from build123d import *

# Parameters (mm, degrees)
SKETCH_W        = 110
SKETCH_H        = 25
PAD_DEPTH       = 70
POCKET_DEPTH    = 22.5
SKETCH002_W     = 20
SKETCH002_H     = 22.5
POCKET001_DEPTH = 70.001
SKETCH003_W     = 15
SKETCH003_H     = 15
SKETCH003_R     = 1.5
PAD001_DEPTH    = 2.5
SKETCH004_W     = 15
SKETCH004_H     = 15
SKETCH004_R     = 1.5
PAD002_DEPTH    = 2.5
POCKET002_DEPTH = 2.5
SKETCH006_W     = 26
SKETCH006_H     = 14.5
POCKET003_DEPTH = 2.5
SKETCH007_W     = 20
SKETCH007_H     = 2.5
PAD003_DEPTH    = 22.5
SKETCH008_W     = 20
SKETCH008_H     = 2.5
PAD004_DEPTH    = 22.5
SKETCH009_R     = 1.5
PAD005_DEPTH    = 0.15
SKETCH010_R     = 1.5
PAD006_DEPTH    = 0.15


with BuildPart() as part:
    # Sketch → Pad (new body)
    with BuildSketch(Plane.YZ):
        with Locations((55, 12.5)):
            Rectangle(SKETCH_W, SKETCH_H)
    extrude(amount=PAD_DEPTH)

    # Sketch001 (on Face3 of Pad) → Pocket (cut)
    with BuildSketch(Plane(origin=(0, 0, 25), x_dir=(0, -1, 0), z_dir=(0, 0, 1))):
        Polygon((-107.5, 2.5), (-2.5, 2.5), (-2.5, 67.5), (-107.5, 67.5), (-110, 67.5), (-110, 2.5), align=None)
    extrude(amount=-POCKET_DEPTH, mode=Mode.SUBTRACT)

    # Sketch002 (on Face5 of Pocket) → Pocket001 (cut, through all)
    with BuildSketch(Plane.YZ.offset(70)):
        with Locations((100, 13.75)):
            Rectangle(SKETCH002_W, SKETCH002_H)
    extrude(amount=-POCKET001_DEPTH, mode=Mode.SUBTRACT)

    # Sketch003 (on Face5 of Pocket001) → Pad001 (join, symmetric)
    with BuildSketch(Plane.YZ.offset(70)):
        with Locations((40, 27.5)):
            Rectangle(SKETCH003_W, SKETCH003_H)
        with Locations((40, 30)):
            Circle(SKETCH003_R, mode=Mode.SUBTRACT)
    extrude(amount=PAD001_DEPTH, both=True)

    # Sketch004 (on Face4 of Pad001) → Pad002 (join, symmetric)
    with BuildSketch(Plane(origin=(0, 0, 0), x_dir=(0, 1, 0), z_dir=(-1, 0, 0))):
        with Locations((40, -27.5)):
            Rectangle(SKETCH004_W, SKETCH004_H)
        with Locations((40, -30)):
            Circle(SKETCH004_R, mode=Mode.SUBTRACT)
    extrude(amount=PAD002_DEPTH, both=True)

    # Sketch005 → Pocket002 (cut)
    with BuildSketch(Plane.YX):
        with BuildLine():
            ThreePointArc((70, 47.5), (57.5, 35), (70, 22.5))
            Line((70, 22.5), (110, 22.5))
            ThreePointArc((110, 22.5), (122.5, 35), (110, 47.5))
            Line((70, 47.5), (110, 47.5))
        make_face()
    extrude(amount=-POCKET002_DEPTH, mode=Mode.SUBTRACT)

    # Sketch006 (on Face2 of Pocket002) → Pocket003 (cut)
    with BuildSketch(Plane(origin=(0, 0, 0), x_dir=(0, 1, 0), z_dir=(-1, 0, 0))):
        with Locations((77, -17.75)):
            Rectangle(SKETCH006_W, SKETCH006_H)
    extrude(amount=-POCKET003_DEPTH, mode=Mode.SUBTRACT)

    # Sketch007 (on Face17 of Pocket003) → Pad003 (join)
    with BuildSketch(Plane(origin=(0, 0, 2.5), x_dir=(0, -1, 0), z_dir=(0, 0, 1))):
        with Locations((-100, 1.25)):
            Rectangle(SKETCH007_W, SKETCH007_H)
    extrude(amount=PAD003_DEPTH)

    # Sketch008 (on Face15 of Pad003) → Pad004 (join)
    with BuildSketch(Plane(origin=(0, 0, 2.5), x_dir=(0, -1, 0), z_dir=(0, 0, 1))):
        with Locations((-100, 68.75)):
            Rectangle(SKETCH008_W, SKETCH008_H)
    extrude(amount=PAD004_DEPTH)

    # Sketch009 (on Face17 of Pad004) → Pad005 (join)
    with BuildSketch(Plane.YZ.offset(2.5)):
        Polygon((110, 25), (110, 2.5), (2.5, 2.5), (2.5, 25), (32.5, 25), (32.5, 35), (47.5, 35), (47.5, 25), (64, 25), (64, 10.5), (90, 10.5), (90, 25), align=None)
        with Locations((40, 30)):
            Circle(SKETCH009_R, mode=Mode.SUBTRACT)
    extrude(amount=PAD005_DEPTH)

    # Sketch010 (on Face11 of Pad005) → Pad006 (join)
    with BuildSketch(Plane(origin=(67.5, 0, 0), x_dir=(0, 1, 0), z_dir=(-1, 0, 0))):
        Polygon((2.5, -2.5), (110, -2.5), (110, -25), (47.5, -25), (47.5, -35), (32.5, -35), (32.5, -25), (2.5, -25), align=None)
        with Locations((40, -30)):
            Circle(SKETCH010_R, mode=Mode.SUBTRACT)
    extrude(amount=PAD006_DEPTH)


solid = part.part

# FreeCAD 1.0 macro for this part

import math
import FreeCAD as App
import Part
import Sketcher
from FreeCAD import Vector
Q = App.Units.Quantity

doc = App.newDocument("Part")
body = doc.addObject("PartDesign::Body", "Body")

# Sketch on YZ plane
sketch1 = body.newObject("Sketcher::SketchObject", "Sketch")
sketch1.AttachmentSupport = (doc.getObject("YZ_Plane"), [""])
sketch1.MapMode = "FlatFace"
sketch1.addGeometry(Part.LineSegment(Vector(0, 25, 0), Vector(0, 0, 0)), False)
sketch1.addGeometry(Part.LineSegment(Vector(0, 0, 0), Vector(110, 0, 0)), False)
sketch1.addGeometry(Part.LineSegment(Vector(110, 0, 0), Vector(110, 25, 0)), False)
sketch1.addGeometry(Part.LineSegment(Vector(110, 25, 0), Vector(0, 25, 0)), False)
sketch1.addConstraint(Sketcher.Constraint("Coincident", 0, 2, 1, 1))
sketch1.addConstraint(Sketcher.Constraint("Coincident", 1, 2, 2, 1))
sketch1.addConstraint(Sketcher.Constraint("Coincident", 2, 2, 3, 1))
sketch1.addConstraint(Sketcher.Constraint("Coincident", 3, 2, 0, 1))
sketch1.addConstraint(Sketcher.Constraint("Vertical", 0))
sketch1.addConstraint(Sketcher.Constraint("Horizontal", 1))
sketch1.addConstraint(Sketcher.Constraint("Vertical", 2))
sketch1.addConstraint(Sketcher.Constraint("Horizontal", 3))
sketch1.addConstraint(Sketcher.Constraint("Coincident", 0, 2, -1, 1))
sketch1.addConstraint(Sketcher.Constraint("DistanceX", 1, 1, 1, 2, Q("110 mm")))
sketch1.addConstraint(Sketcher.Constraint("DistanceY", 0, 2, 0, 1, Q("25 mm")))
pad1 = body.newObject("PartDesign::Pad", "Pad")
pad1.Profile = sketch1
pad1.Length = 70

# Sketch on XY plane
sketch2 = body.newObject("Sketcher::SketchObject", "Sketch001")
sketch2.AttachmentSupport = (doc.getObject("XY_Plane"), [""])
sketch2.MapMode = "FlatFace"
sketch2.AttachmentOffset = App.Placement(Vector(0, 0, 25), App.Rotation())
sketch2.addGeometry(Part.LineSegment(Vector(2.5, 2.5, 0), Vector(67.5, 2.5, 0)), False)
sketch2.addGeometry(Part.LineSegment(Vector(67.5, 2.5, 0), Vector(67.5, 110, 0)), False)
sketch2.addGeometry(Part.LineSegment(Vector(67.5, 110, 0), Vector(2.5, 110, 0)), False)
sketch2.addGeometry(Part.LineSegment(Vector(2.5, 110, 0), Vector(2.5, 2.5, 0)), False)
sketch2.addConstraint(Sketcher.Constraint("Coincident", 0, 2, 1, 1))
sketch2.addConstraint(Sketcher.Constraint("Coincident", 1, 2, 2, 1))
sketch2.addConstraint(Sketcher.Constraint("Coincident", 2, 2, 3, 1))
sketch2.addConstraint(Sketcher.Constraint("Coincident", 3, 2, 0, 1))
sketch2.addConstraint(Sketcher.Constraint("Horizontal", 0))
sketch2.addConstraint(Sketcher.Constraint("Vertical", 1))
sketch2.addConstraint(Sketcher.Constraint("Horizontal", 2))
sketch2.addConstraint(Sketcher.Constraint("Vertical", 3))
sketch2.addConstraint(Sketcher.Constraint("DistanceX", 0, 1, 0, 2, Q("65 mm")))
sketch2.addConstraint(Sketcher.Constraint("DistanceY", 1, 1, 1, 2, Q("107.5 mm")))
sketch2.addConstraint(Sketcher.Constraint("DistanceY", -1, 1, 1, 2, Q("110 mm")))
sketch2.addConstraint(Sketcher.Constraint("DistanceX", -1, 1, 0, 2, Q("67.5 mm")))
pocket1 = body.newObject("PartDesign::Pocket", "Pocket")
pocket1.Profile = sketch2
pocket1.Length = 22.5

# Sketch on YZ plane
sketch3 = body.newObject("Sketcher::SketchObject", "Sketch002")
sketch3.AttachmentSupport = (doc.getObject("YZ_Plane"), [""])
sketch3.MapMode = "FlatFace"
sketch3.AttachmentOffset = App.Placement(Vector(0, 0, 70), App.Rotation())
sketch3.addGeometry(Part.LineSegment(Vector(90, 25, 0), Vector(90, 2.5, 0)), False)
sketch3.addGeometry(Part.LineSegment(Vector(90, 2.5, 0), Vector(110, 2.5, 0)), False)
sketch3.addGeometry(Part.LineSegment(Vector(110, 2.5, 0), Vector(110, 25, 0)), False)
sketch3.addGeometry(Part.LineSegment(Vector(110, 25, 0), Vector(90, 25, 0)), False)
sketch3.addConstraint(Sketcher.Constraint("Coincident", 0, 2, 1, 1))
sketch3.addConstraint(Sketcher.Constraint("Coincident", 1, 2, 2, 1))
sketch3.addConstraint(Sketcher.Constraint("Coincident", 2, 2, 3, 1))
sketch3.addConstraint(Sketcher.Constraint("Coincident", 3, 2, 0, 1))
sketch3.addConstraint(Sketcher.Constraint("Vertical", 0))
sketch3.addConstraint(Sketcher.Constraint("Horizontal", 1))
sketch3.addConstraint(Sketcher.Constraint("Vertical", 2))
sketch3.addConstraint(Sketcher.Constraint("Horizontal", 3))
sketch3.addConstraint(Sketcher.Constraint("DistanceX", 1, 1, 1, 2, Q("20 mm")))
sketch3.addConstraint(Sketcher.Constraint("DistanceY", 0, 2, 0, 1, Q("22.5 mm")))
sketch3.addConstraint(Sketcher.Constraint("DistanceX", -1, 1, 0, 2, Q("90 mm")))
sketch3.addConstraint(Sketcher.Constraint("DistanceY", -1, 1, 2, 2, Q("25 mm")))
pocket2 = body.newObject("PartDesign::Pocket", "Pocket001")
pocket2.Profile = sketch3
pocket2.Type = "ThroughAll"

# Sketch on YZ plane
sketch4 = body.newObject("Sketcher::SketchObject", "Sketch003")
sketch4.AttachmentSupport = (doc.getObject("YZ_Plane"), [""])
sketch4.MapMode = "FlatFace"
sketch4.AttachmentOffset = App.Placement(Vector(0, 0, 70), App.Rotation())
sketch4.addGeometry(Part.LineSegment(Vector(32.5, 35, 0), Vector(32.5, 20, 0)), False)
sketch4.addGeometry(Part.LineSegment(Vector(32.5, 20, 0), Vector(47.5, 20, 0)), False)
sketch4.addGeometry(Part.LineSegment(Vector(47.5, 20, 0), Vector(47.5, 35, 0)), False)
sketch4.addGeometry(Part.LineSegment(Vector(47.5, 35, 0), Vector(32.5, 35, 0)), False)
sketch4.addGeometry(Part.Circle(Vector(40, 30, 0), Vector(0, 0, 1), 1.5), False)
sketch4.addConstraint(Sketcher.Constraint("Coincident", 0, 2, 1, 1))
sketch4.addConstraint(Sketcher.Constraint("Coincident", 1, 2, 2, 1))
sketch4.addConstraint(Sketcher.Constraint("Coincident", 2, 2, 3, 1))
sketch4.addConstraint(Sketcher.Constraint("Coincident", 3, 2, 0, 1))
sketch4.addConstraint(Sketcher.Constraint("Vertical", 0))
sketch4.addConstraint(Sketcher.Constraint("Horizontal", 1))
sketch4.addConstraint(Sketcher.Constraint("Vertical", 2))
sketch4.addConstraint(Sketcher.Constraint("Horizontal", 3))
sketch4.addConstraint(Sketcher.Constraint("Equal", 3, 0))
sketch4.addConstraint(Sketcher.Constraint("Diameter", 4, Q("3 mm")))
sketch4.addConstraint(Sketcher.Constraint("DistanceX", 1, 1, 1, 2, Q("15 mm")))
sketch4.addConstraint(Sketcher.Constraint("DistanceX", -1, 1, 4, 3, Q("40 mm")))
sketch4.addConstraint(Sketcher.Constraint("DistanceY", -1, 1, 4, 3, Q("30 mm")))
sketch4.addConstraint(Sketcher.Constraint("DistanceY", -1, 1, 0, 2, Q("20 mm")))
sketch4.addConstraint(Sketcher.Constraint("DistanceX", -1, 1, 0, 2, Q("32.5 mm")))
pad2 = body.newObject("PartDesign::Pad", "Pad001")
pad2.Profile = sketch4
pad2.Length = 5
pad2.Midplane = True

# Sketch on YZ plane
sketch5 = body.newObject("Sketcher::SketchObject", "Sketch004")
sketch5.AttachmentSupport = (doc.getObject("YZ_Plane"), [""])
sketch5.MapMode = "FlatFace"
sketch5.addGeometry(Part.LineSegment(Vector(32.5, 20, 0), Vector(32.5, 35, 0)), False)
sketch5.addGeometry(Part.LineSegment(Vector(32.5, 35, 0), Vector(47.5, 35, 0)), False)
sketch5.addGeometry(Part.LineSegment(Vector(47.5, 35, 0), Vector(47.5, 20, 0)), False)
sketch5.addGeometry(Part.LineSegment(Vector(47.5, 20, 0), Vector(32.5, 20, 0)), False)
sketch5.addGeometry(Part.Circle(Vector(40, 30, 0), Vector(0, 0, 1), 1.5), False)
sketch5.addConstraint(Sketcher.Constraint("Coincident", 0, 2, 1, 1))
sketch5.addConstraint(Sketcher.Constraint("Coincident", 1, 2, 2, 1))
sketch5.addConstraint(Sketcher.Constraint("Coincident", 2, 2, 3, 1))
sketch5.addConstraint(Sketcher.Constraint("Coincident", 3, 2, 0, 1))
sketch5.addConstraint(Sketcher.Constraint("Vertical", 0))
sketch5.addConstraint(Sketcher.Constraint("Horizontal", 1))
sketch5.addConstraint(Sketcher.Constraint("Vertical", 2))
sketch5.addConstraint(Sketcher.Constraint("Horizontal", 3))
sketch5.addConstraint(Sketcher.Constraint("Equal", 3, 0))
sketch5.addConstraint(Sketcher.Constraint("Diameter", 4, Q("3 mm")))
sketch5.addConstraint(Sketcher.Constraint("DistanceX", 1, 1, 1, 2, Q("15 mm")))
sketch5.addConstraint(Sketcher.Constraint("DistanceX", -1, 1, 4, 3, Q("40 mm")))
sketch5.addConstraint(Sketcher.Constraint("DistanceY", -1, 1, 4, 3, Q("30 mm")))
sketch5.addConstraint(Sketcher.Constraint("DistanceY", -1, 1, 0, 2, Q("35 mm")))
sketch5.addConstraint(Sketcher.Constraint("DistanceX", -1, 1, 0, 2, Q("32.5 mm")))
pad3 = body.newObject("PartDesign::Pad", "Pad002")
pad3.Profile = sketch5
pad3.Length = 5
pad3.Midplane = True

# Sketch on XY plane
sketch6 = body.newObject("Sketcher::SketchObject", "Sketch005")
sketch6.AttachmentSupport = (doc.getObject("XY_Plane"), [""])
sketch6.MapMode = "FlatFace"
sketch6.addGeometry(Part.ArcOfCircle(Part.Circle(Vector(35, 70, 0), Vector(0, 0, 1), 12.5), math.radians(180), math.radians(360)), False)
sketch6.addGeometry(Part.LineSegment(Vector(22.5, 70, 0), Vector(22.5, 110, 0)), False)
sketch6.addGeometry(Part.ArcOfCircle(Part.Circle(Vector(35, 110, 0), Vector(0, 0, 1), 12.5), math.radians(0), math.radians(180)), False)
sketch6.addGeometry(Part.LineSegment(Vector(47.5, 110, 0), Vector(47.5, 70, 0)), False)
sketch6.addConstraint(Sketcher.Constraint("Tangent", 0, 1, 1, 1))
sketch6.addConstraint(Sketcher.Constraint("Tangent", 1, 2, 2, 2))
sketch6.addConstraint(Sketcher.Constraint("Tangent", 2, 1, 3, 1))
sketch6.addConstraint(Sketcher.Constraint("Tangent", 3, 2, 0, 2))
sketch6.addConstraint(Sketcher.Constraint("Vertical", 1))
sketch6.addConstraint(Sketcher.Constraint("Vertical", 3))
sketch6.addConstraint(Sketcher.Constraint("Radius", 0, Q("12.5 mm")))
sketch6.addConstraint(Sketcher.Constraint("DistanceY", 1, 1, 1, 2, Q("40 mm")))
sketch6.addConstraint(Sketcher.Constraint("DistanceX", -1, 1, 0, 3, Q("35 mm")))
sketch6.addConstraint(Sketcher.Constraint("DistanceY", -1, 1, 0, 3, Q("70 mm")))
pocket3 = body.newObject("PartDesign::Pocket", "Pocket002")
pocket3.Profile = sketch6
pocket3.Length = 2.5
pocket3.Reversed = True

# Sketch on YZ plane
sketch7 = body.newObject("Sketcher::SketchObject", "Sketch006")
sketch7.AttachmentSupport = (doc.getObject("YZ_Plane"), [""])
sketch7.MapMode = "FlatFace"
sketch7.addGeometry(Part.LineSegment(Vector(64, 10.5, 0), Vector(64, 25, 0)), False)
sketch7.addGeometry(Part.LineSegment(Vector(64, 25, 0), Vector(90, 25, 0)), False)
sketch7.addGeometry(Part.LineSegment(Vector(90, 25, 0), Vector(90, 10.5, 0)), False)
sketch7.addGeometry(Part.LineSegment(Vector(90, 10.5, 0), Vector(64, 10.5, 0)), False)
sketch7.addConstraint(Sketcher.Constraint("Coincident", 0, 2, 1, 1))
sketch7.addConstraint(Sketcher.Constraint("Coincident", 1, 2, 2, 1))
sketch7.addConstraint(Sketcher.Constraint("Coincident", 2, 2, 3, 1))
sketch7.addConstraint(Sketcher.Constraint("Coincident", 3, 2, 0, 1))
sketch7.addConstraint(Sketcher.Constraint("Vertical", 0))
sketch7.addConstraint(Sketcher.Constraint("Horizontal", 1))
sketch7.addConstraint(Sketcher.Constraint("Vertical", 2))
sketch7.addConstraint(Sketcher.Constraint("Horizontal", 3))
sketch7.addConstraint(Sketcher.Constraint("DistanceX", 1, 1, 1, 2, Q("26 mm")))
sketch7.addConstraint(Sketcher.Constraint("DistanceY", 0, 1, 0, 2, Q("14.5 mm")))
sketch7.addConstraint(Sketcher.Constraint("DistanceX", -1, 1, 0, 2, Q("64 mm")))
sketch7.addConstraint(Sketcher.Constraint("DistanceY", -1, 1, 0, 2, Q("25 mm")))
pocket4 = body.newObject("PartDesign::Pocket", "Pocket003")
pocket4.Profile = sketch7
pocket4.Length = 2.5
pocket4.Reversed = True

# Sketch on XY plane
sketch8 = body.newObject("Sketcher::SketchObject", "Sketch007")
sketch8.AttachmentSupport = (doc.getObject("XY_Plane"), [""])
sketch8.MapMode = "FlatFace"
sketch8.AttachmentOffset = App.Placement(Vector(0, 0, 2.5), App.Rotation())
sketch8.addGeometry(Part.LineSegment(Vector(2.5, 110, 0), Vector(0, 110, 0)), False)
sketch8.addGeometry(Part.LineSegment(Vector(0, 110, 0), Vector(0, 90, 0)), False)
sketch8.addGeometry(Part.LineSegment(Vector(0, 90, 0), Vector(2.5, 90, 0)), False)
sketch8.addGeometry(Part.LineSegment(Vector(2.5, 90, 0), Vector(2.5, 110, 0)), False)
sketch8.addConstraint(Sketcher.Constraint("Coincident", 0, 2, 1, 1))
sketch8.addConstraint(Sketcher.Constraint("Coincident", 1, 2, 2, 1))
sketch8.addConstraint(Sketcher.Constraint("Coincident", 2, 2, 3, 1))
sketch8.addConstraint(Sketcher.Constraint("Coincident", 3, 2, 0, 1))
sketch8.addConstraint(Sketcher.Constraint("Horizontal", 0))
sketch8.addConstraint(Sketcher.Constraint("Vertical", 1))
sketch8.addConstraint(Sketcher.Constraint("Horizontal", 2))
sketch8.addConstraint(Sketcher.Constraint("Vertical", 3))
sketch8.addConstraint(Sketcher.Constraint("PointOnObject", 0, 2, -2))
sketch8.addConstraint(Sketcher.Constraint("DistanceY", 1, 2, 1, 1, Q("20 mm")))
sketch8.addConstraint(Sketcher.Constraint("DistanceX", 0, 2, 0, 1, Q("2.5 mm")))
sketch8.addConstraint(Sketcher.Constraint("DistanceY", -1, 1, 0, 2, Q("110 mm")))
pad4 = body.newObject("PartDesign::Pad", "Pad003")
pad4.Profile = sketch8
pad4.Length = 22.5

# Sketch on XY plane
sketch9 = body.newObject("Sketcher::SketchObject", "Sketch008")
sketch9.AttachmentSupport = (doc.getObject("XY_Plane"), [""])
sketch9.MapMode = "FlatFace"
sketch9.AttachmentOffset = App.Placement(Vector(0, 0, 2.5), App.Rotation())
sketch9.addGeometry(Part.LineSegment(Vector(70, 110, 0), Vector(67.5, 110, 0)), False)
sketch9.addGeometry(Part.LineSegment(Vector(67.5, 110, 0), Vector(67.5, 90, 0)), False)
sketch9.addGeometry(Part.LineSegment(Vector(67.5, 90, 0), Vector(70, 90, 0)), False)
sketch9.addGeometry(Part.LineSegment(Vector(70, 90, 0), Vector(70, 110, 0)), False)
sketch9.addConstraint(Sketcher.Constraint("Coincident", 0, 2, 1, 1))
sketch9.addConstraint(Sketcher.Constraint("Coincident", 1, 2, 2, 1))
sketch9.addConstraint(Sketcher.Constraint("Coincident", 2, 2, 3, 1))
sketch9.addConstraint(Sketcher.Constraint("Coincident", 3, 2, 0, 1))
sketch9.addConstraint(Sketcher.Constraint("Horizontal", 0))
sketch9.addConstraint(Sketcher.Constraint("Vertical", 1))
sketch9.addConstraint(Sketcher.Constraint("Horizontal", 2))
sketch9.addConstraint(Sketcher.Constraint("Vertical", 3))
sketch9.addConstraint(Sketcher.Constraint("DistanceY", 1, 2, 1, 1, Q("20 mm")))
sketch9.addConstraint(Sketcher.Constraint("DistanceX", 0, 2, 0, 1, Q("2.5 mm")))
sketch9.addConstraint(Sketcher.Constraint("DistanceY", -1, 1, 0, 2, Q("110 mm")))
sketch9.addConstraint(Sketcher.Constraint("DistanceX", -1, 1, 2, 2, Q("70 mm")))
pad5 = body.newObject("PartDesign::Pad", "Pad004")
pad5.Profile = sketch9
pad5.Length = 22.5

# Sketch on YZ plane
sketch10 = body.newObject("Sketcher::SketchObject", "Sketch009")
sketch10.AttachmentSupport = (doc.getObject("YZ_Plane"), [""])
sketch10.MapMode = "FlatFace"
sketch10.AttachmentOffset = App.Placement(Vector(0, 0, 2.5), App.Rotation())
sketch10.addGeometry(Part.LineSegment(Vector(110, 2.5, 0), Vector(110, 25, 0)), False)
sketch10.addGeometry(Part.LineSegment(Vector(110, 25, 0), Vector(90, 25, 0)), False)
sketch10.addGeometry(Part.LineSegment(Vector(90, 25, 0), Vector(90, 10.5, 0)), False)
sketch10.addGeometry(Part.LineSegment(Vector(90, 10.5, 0), Vector(64, 10.5, 0)), False)
sketch10.addGeometry(Part.LineSegment(Vector(64, 10.5, 0), Vector(64, 25, 0)), False)
sketch10.addGeometry(Part.LineSegment(Vector(64, 25, 0), Vector(47.5, 25, 0)), False)
sketch10.addGeometry(Part.LineSegment(Vector(47.5, 25, 0), Vector(47.5, 35, 0)), False)
sketch10.addGeometry(Part.LineSegment(Vector(47.5, 35, 0), Vector(32.5, 35, 0)), False)
sketch10.addGeometry(Part.LineSegment(Vector(32.5, 35, 0), Vector(32.5, 25, 0)), False)
sketch10.addGeometry(Part.LineSegment(Vector(32.5, 25, 0), Vector(2.5, 25, 0)), False)
sketch10.addGeometry(Part.LineSegment(Vector(2.5, 25, 0), Vector(2.5, 2.5, 0)), False)
sketch10.addGeometry(Part.LineSegment(Vector(2.5, 2.5, 0), Vector(110, 2.5, 0)), False)
sketch10.addGeometry(Part.Circle(Vector(40, 30, 0), Vector(0, 0, 1), 1.5), False)
sketch10.addConstraint(Sketcher.Constraint("Coincident", 0, 2, 1, 1))
sketch10.addConstraint(Sketcher.Constraint("Coincident", 1, 2, 2, 1))
sketch10.addConstraint(Sketcher.Constraint("Coincident", 2, 2, 3, 1))
sketch10.addConstraint(Sketcher.Constraint("Coincident", 3, 2, 4, 1))
sketch10.addConstraint(Sketcher.Constraint("Coincident", 4, 2, 5, 1))
sketch10.addConstraint(Sketcher.Constraint("Coincident", 5, 2, 6, 1))
sketch10.addConstraint(Sketcher.Constraint("Coincident", 6, 2, 7, 1))
sketch10.addConstraint(Sketcher.Constraint("Coincident", 7, 2, 8, 1))
sketch10.addConstraint(Sketcher.Constraint("Coincident", 8, 2, 9, 1))
sketch10.addConstraint(Sketcher.Constraint("Coincident", 9, 2, 10, 1))
sketch10.addConstraint(Sketcher.Constraint("Coincident", 10, 2, 11, 1))
sketch10.addConstraint(Sketcher.Constraint("Coincident", 11, 2, 0, 1))
sketch10.addConstraint(Sketcher.Constraint("Vertical", 0))
sketch10.addConstraint(Sketcher.Constraint("Horizontal", 1))
sketch10.addConstraint(Sketcher.Constraint("Vertical", 2))
sketch10.addConstraint(Sketcher.Constraint("Horizontal", 3))
sketch10.addConstraint(Sketcher.Constraint("Vertical", 4))
sketch10.addConstraint(Sketcher.Constraint("Horizontal", 5))
sketch10.addConstraint(Sketcher.Constraint("Vertical", 6))
sketch10.addConstraint(Sketcher.Constraint("Horizontal", 7))
sketch10.addConstraint(Sketcher.Constraint("Vertical", 8))
sketch10.addConstraint(Sketcher.Constraint("Horizontal", 9))
sketch10.addConstraint(Sketcher.Constraint("Vertical", 10))
sketch10.addConstraint(Sketcher.Constraint("Horizontal", 11))
sketch10.addConstraint(Sketcher.Constraint("Horizontal", 1, 2, 4, 2))
sketch10.addConstraint(Sketcher.Constraint("Horizontal", 5, 2, 8, 2))
sketch10.addConstraint(Sketcher.Constraint("Diameter", 12, Q("3 mm")))
sketch10.addConstraint(Sketcher.Constraint("DistanceX", 1, 2, 1, 1, Q("20 mm")))
sketch10.addConstraint(Sketcher.Constraint("DistanceX", 3, 2, 3, 1, Q("26 mm")))
sketch10.addConstraint(Sketcher.Constraint("DistanceX", 7, 2, 7, 1, Q("15 mm")))
sketch10.addConstraint(Sketcher.Constraint("DistanceX", 9, 2, 9, 1, Q("30 mm")))
sketch10.addConstraint(Sketcher.Constraint("DistanceY", 6, 1, 6, 2, Q("10 mm")))
sketch10.addConstraint(Sketcher.Constraint("DistanceX", 5, 2, 5, 1, Q("16.5 mm")))
sketch10.addConstraint(Sketcher.Constraint("DistanceY", 0, 1, 0, 2, Q("22.5 mm")))
sketch10.addConstraint(Sketcher.Constraint("DistanceY", 2, 2, 2, 1, Q("14.5 mm")))
sketch10.addConstraint(Sketcher.Constraint("DistanceX", -1, 1, 12, 3, Q("40 mm")))
sketch10.addConstraint(Sketcher.Constraint("DistanceY", -1, 1, 12, 3, Q("30 mm")))
sketch10.addConstraint(Sketcher.Constraint("DistanceX", -1, 1, 0, 2, Q("110 mm")))
sketch10.addConstraint(Sketcher.Constraint("DistanceY", -1, 1, 0, 2, Q("25 mm")))
pad6 = body.newObject("PartDesign::Pad", "Pad005")
pad6.Profile = sketch10
pad6.Length = 0.15

# Sketch on YZ plane
sketch11 = body.newObject("Sketcher::SketchObject", "Sketch010")
sketch11.AttachmentSupport = (doc.getObject("YZ_Plane"), [""])
sketch11.MapMode = "FlatFace"
sketch11.AttachmentOffset = App.Placement(Vector(0, 0, 67.5), App.Rotation())
sketch11.addGeometry(Part.LineSegment(Vector(110, 2.5, 0), Vector(2.5, 2.5, 0)), False)
sketch11.addGeometry(Part.LineSegment(Vector(2.5, 2.5, 0), Vector(2.5, 25, 0)), False)
sketch11.addGeometry(Part.LineSegment(Vector(2.5, 25, 0), Vector(32.5, 25, 0)), False)
sketch11.addGeometry(Part.LineSegment(Vector(32.5, 25, 0), Vector(32.5, 35, 0)), False)
sketch11.addGeometry(Part.LineSegment(Vector(32.5, 35, 0), Vector(47.5, 35, 0)), False)
sketch11.addGeometry(Part.LineSegment(Vector(47.5, 35, 0), Vector(47.5, 25, 0)), False)
sketch11.addGeometry(Part.LineSegment(Vector(47.5, 25, 0), Vector(110, 25, 0)), False)
sketch11.addGeometry(Part.LineSegment(Vector(110, 25, 0), Vector(110, 2.5, 0)), False)
sketch11.addGeometry(Part.Circle(Vector(40, 30, 0), Vector(0, 0, 1), 1.5), False)
sketch11.addConstraint(Sketcher.Constraint("Coincident", 0, 2, 1, 1))
sketch11.addConstraint(Sketcher.Constraint("Coincident", 1, 2, 2, 1))
sketch11.addConstraint(Sketcher.Constraint("Coincident", 2, 2, 3, 1))
sketch11.addConstraint(Sketcher.Constraint("Coincident", 3, 2, 4, 1))
sketch11.addConstraint(Sketcher.Constraint("Coincident", 4, 2, 5, 1))
sketch11.addConstraint(Sketcher.Constraint("Coincident", 5, 2, 6, 1))
sketch11.addConstraint(Sketcher.Constraint("Coincident", 6, 2, 7, 1))
sketch11.addConstraint(Sketcher.Constraint("Coincident", 7, 2, 0, 1))
sketch11.addConstraint(Sketcher.Constraint("Horizontal", 0))
sketch11.addConstraint(Sketcher.Constraint("Vertical", 1))
sketch11.addConstraint(Sketcher.Constraint("Horizontal", 2))
sketch11.addConstraint(Sketcher.Constraint("Vertical", 3))
sketch11.addConstraint(Sketcher.Constraint("Horizontal", 4))
sketch11.addConstraint(Sketcher.Constraint("Vertical", 5))
sketch11.addConstraint(Sketcher.Constraint("Horizontal", 6))
sketch11.addConstraint(Sketcher.Constraint("Vertical", 7))
sketch11.addConstraint(Sketcher.Constraint("Horizontal", 2, 2, 5, 2))
sketch11.addConstraint(Sketcher.Constraint("Diameter", 8, Q("3 mm")))
sketch11.addConstraint(Sketcher.Constraint("DistanceX", 2, 1, 2, 2, Q("30 mm")))
sketch11.addConstraint(Sketcher.Constraint("DistanceX", 4, 1, 4, 2, Q("15 mm")))
sketch11.addConstraint(Sketcher.Constraint("DistanceY", 3, 1, 3, 2, Q("10 mm")))
sketch11.addConstraint(Sketcher.Constraint("DistanceX", 0, 2, 0, 1, Q("107.5 mm")))
sketch11.addConstraint(Sketcher.Constraint("DistanceY", 1, 1, 1, 2, Q("22.5 mm")))
sketch11.addConstraint(Sketcher.Constraint("DistanceX", -1, 1, 8, 3, Q("40 mm")))
sketch11.addConstraint(Sketcher.Constraint("DistanceY", -1, 1, 8, 3, Q("30 mm")))
sketch11.addConstraint(Sketcher.Constraint("DistanceY", -1, 1, 1, 2, Q("25 mm")))
sketch11.addConstraint(Sketcher.Constraint("DistanceX", -1, 1, 6, 2, Q("110 mm")))
pad7 = body.newObject("PartDesign::Pad", "Pad006")
pad7.Profile = sketch11
pad7.Length = 0.15
pad7.Reversed = True

doc.recompute()
